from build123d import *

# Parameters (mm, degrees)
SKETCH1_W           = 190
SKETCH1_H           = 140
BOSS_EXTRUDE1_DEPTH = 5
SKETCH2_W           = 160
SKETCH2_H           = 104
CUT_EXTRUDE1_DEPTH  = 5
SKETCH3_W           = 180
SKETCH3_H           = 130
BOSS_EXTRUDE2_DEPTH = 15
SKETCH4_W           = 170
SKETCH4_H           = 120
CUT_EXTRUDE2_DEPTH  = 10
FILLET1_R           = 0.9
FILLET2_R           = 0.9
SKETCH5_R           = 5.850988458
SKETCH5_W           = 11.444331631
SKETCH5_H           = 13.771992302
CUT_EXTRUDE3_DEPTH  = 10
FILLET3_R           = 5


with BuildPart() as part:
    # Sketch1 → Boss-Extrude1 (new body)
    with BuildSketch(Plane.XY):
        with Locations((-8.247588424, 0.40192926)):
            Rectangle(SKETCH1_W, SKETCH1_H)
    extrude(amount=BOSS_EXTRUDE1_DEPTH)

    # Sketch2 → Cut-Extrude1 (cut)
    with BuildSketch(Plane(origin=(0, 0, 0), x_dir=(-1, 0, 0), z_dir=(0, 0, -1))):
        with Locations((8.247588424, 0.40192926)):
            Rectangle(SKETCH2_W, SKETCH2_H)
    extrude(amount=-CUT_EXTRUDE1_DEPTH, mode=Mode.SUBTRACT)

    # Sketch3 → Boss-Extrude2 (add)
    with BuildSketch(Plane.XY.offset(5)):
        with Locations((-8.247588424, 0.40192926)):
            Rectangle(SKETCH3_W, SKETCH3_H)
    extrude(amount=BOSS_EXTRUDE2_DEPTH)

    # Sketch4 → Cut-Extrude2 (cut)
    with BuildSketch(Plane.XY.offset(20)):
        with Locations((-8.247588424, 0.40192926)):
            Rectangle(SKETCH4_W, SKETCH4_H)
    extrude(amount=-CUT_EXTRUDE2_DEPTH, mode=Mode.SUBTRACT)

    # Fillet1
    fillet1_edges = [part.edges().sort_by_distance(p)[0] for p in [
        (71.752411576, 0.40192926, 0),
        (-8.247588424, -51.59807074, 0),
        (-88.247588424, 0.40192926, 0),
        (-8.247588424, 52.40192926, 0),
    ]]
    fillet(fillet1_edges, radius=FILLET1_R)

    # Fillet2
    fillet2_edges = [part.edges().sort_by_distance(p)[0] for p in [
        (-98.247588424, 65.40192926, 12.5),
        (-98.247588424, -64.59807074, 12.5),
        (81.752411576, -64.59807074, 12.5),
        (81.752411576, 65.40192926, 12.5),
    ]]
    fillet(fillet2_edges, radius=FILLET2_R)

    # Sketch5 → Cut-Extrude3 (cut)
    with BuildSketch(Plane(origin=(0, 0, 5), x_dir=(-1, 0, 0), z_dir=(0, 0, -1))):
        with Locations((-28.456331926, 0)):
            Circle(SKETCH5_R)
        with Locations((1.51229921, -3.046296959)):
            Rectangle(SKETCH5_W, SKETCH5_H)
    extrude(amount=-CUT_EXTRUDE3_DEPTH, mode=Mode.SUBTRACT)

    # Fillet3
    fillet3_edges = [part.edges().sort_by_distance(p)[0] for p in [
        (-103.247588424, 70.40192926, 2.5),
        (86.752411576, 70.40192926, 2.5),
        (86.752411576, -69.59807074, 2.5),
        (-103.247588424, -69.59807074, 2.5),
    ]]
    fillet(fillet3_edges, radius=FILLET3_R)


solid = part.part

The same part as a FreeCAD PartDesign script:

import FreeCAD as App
import Part
import Sketcher


def edges_at(feature, points):
    """Names of the edges that pass closest to the given points."""
    edges = feature.Shape.Edges
    near = lambda p: min(range(len(edges)), key=lambda i: edges[i].distToShape(Part.Vertex(*p))[0])
    return sorted({f"Edge{near(p) + 1}" for p in points})

doc = App.newDocument("Part")
body = doc.addObject("PartDesign::Body", "Body")

sketch1 = body.newObject("Sketcher::SketchObject", "Sketch")
sketch1.AttachmentSupport = (doc.getObject("XY_Plane"), [""])
sketch1.MapMode = "FlatFace"
sketch1.addGeometry(Part.LineSegment(App.Vector(-103, 70, 0), App.Vector(-103, -70, 0)), False)
sketch1.addGeometry(Part.LineSegment(App.Vector(-103, -70, 0), App.Vector(87, -70, 0)), False)
sketch1.addGeometry(Part.LineSegment(App.Vector(87, -70, 0), App.Vector(87, 70, 0)), False)
sketch1.addGeometry(Part.LineSegment(App.Vector(87, 70, 0), App.Vector(-103, 70, 0)), False)
sketch1.addConstraint(Sketcher.Constraint("Coincident", 0, 2, 1, 1))
sketch1.addConstraint(Sketcher.Constraint("Coincident", 1, 2, 2, 1))
sketch1.addConstraint(Sketcher.Constraint("Coincident", 2, 2, 3, 1))
sketch1.addConstraint(Sketcher.Constraint("Coincident", 3, 2, 0, 1))
sketch1.addConstraint(Sketcher.Constraint("Vertical", 0))
sketch1.addConstraint(Sketcher.Constraint("Horizontal", 1))
sketch1.addConstraint(Sketcher.Constraint("Vertical", 2))
sketch1.addConstraint(Sketcher.Constraint("Horizontal", 3))
sketch1.addConstraint(Sketcher.Constraint("DistanceX", 1, 1, 1, 2, 190.0))
sketch1.addConstraint(Sketcher.Constraint("DistanceY", 0, 2, 0, 1, 140.0))
sketch1.addConstraint(Sketcher.Constraint("DistanceX", 0, 2, -1, 1, 103.247588))
sketch1.addConstraint(Sketcher.Constraint("DistanceY", 0, 2, -1, 1, 69.598071))
pad1 = body.newObject("PartDesign::Pad", "Pad")
pad1.Profile = sketch1
pad1.Length = 5

sketch2 = body.newObject("Sketcher::SketchObject", "Sketch001")
sketch2.AttachmentSupport = (doc.getObject("XY_Plane"), [""])
sketch2.MapMode = "FlatFace"
sketch2.addGeometry(Part.LineSegment(App.Vector(72, 52, 0), App.Vector(72, -52, 0)), False)
sketch2.addGeometry(Part.LineSegment(App.Vector(72, -52, 0), App.Vector(-88, -52, 0)), False)
sketch2.addGeometry(Part.LineSegment(App.Vector(-88, -52, 0), App.Vector(-88, 52, 0)), False)
sketch2.addGeometry(Part.LineSegment(App.Vector(-88, 52, 0), App.Vector(72, 52, 0)), False)
sketch2.addConstraint(Sketcher.Constraint("Coincident", 0, 2, 1, 1))
sketch2.addConstraint(Sketcher.Constraint("Coincident", 1, 2, 2, 1))
sketch2.addConstraint(Sketcher.Constraint("Coincident", 2, 2, 3, 1))
sketch2.addConstraint(Sketcher.Constraint("Coincident", 3, 2, 0, 1))
sketch2.addConstraint(Sketcher.Constraint("Vertical", 0))
sketch2.addConstraint(Sketcher.Constraint("Horizontal", 1))
sketch2.addConstraint(Sketcher.Constraint("Vertical", 2))
sketch2.addConstraint(Sketcher.Constraint("Horizontal", 3))
sketch2.addConstraint(Sketcher.Constraint("DistanceX", 1, 2, 1, 1, 160.0))
sketch2.addConstraint(Sketcher.Constraint("DistanceY", 0, 2, 0, 1, 104.0))
sketch2.addConstraint(Sketcher.Constraint("DistanceX", -1, 1, 0, 2, 71.752412))
sketch2.addConstraint(Sketcher.Constraint("DistanceY", 0, 2, -1, 1, 51.598071))
pocket1 = body.newObject("PartDesign::Pocket", "Pocket")
pocket1.Profile = sketch2
pocket1.Length = 5
pocket1.Reversed = True

sketch3 = body.newObject("Sketcher::SketchObject", "Sketch002")
sketch3.AttachmentSupport = (doc.getObject("XY_Plane"), [""])
sketch3.MapMode = "FlatFace"
sketch3.AttachmentOffset = App.Placement(App.Vector(0, 0, 5), App.Rotation())
sketch3.addGeometry(Part.LineSegment(App.Vector(-98, 65, 0), App.Vector(-98, -65, 0)), False)
sketch3.addGeometry(Part.LineSegment(App.Vector(-98, -65, 0), App.Vector(82, -65, 0)), False)
sketch3.addGeometry(Part.LineSegment(App.Vector(82, -65, 0), App.Vector(82, 65, 0)), False)
sketch3.addGeometry(Part.LineSegment(App.Vector(82, 65, 0), App.Vector(-98, 65, 0)), False)
sketch3.addConstraint(Sketcher.Constraint("Coincident", 0, 2, 1, 1))
sketch3.addConstraint(Sketcher.Constraint("Coincident", 1, 2, 2, 1))
sketch3.addConstraint(Sketcher.Constraint("Coincident", 2, 2, 3, 1))
sketch3.addConstraint(Sketcher.Constraint("Coincident", 3, 2, 0, 1))
sketch3.addConstraint(Sketcher.Constraint("Vertical", 0))
sketch3.addConstraint(Sketcher.Constraint("Horizontal", 1))
sketch3.addConstraint(Sketcher.Constraint("Vertical", 2))
sketch3.addConstraint(Sketcher.Constraint("Horizontal", 3))
sketch3.addConstraint(Sketcher.Constraint("DistanceX", 1, 1, 1, 2, 180.0))
sketch3.addConstraint(Sketcher.Constraint("DistanceY", 0, 2, 0, 1, 130.0))
sketch3.addConstraint(Sketcher.Constraint("DistanceX", 0, 2, -1, 1, 98.247588))
sketch3.addConstraint(Sketcher.Constraint("DistanceY", 0, 2, -1, 1, 64.598071))
pad2 = body.newObject("PartDesign::Pad", "Pad001")
pad2.Profile = sketch3
pad2.Length = 15

sketch4 = body.newObject("Sketcher::SketchObject", "Sketch003")
sketch4.AttachmentSupport = (doc.getObject("XY_Plane"), [""])
sketch4.MapMode = "FlatFace"
sketch4.AttachmentOffset = App.Placement(App.Vector(0, 0, 20), App.Rotation())
sketch4.addGeometry(Part.LineSegment(App.Vector(-93, 60, 0), App.Vector(-93, -60, 0)), False)
sketch4.addGeometry(Part.LineSegment(App.Vector(-93, -60, 0), App.Vector(77, -60, 0)), False)
sketch4.addGeometry(Part.LineSegment(App.Vector(77, -60, 0), App.Vector(77, 60, 0)), False)
sketch4.addGeometry(Part.LineSegment(App.Vector(77, 60, 0), App.Vector(-93, 60, 0)), False)
sketch4.addConstraint(Sketcher.Constraint("Coincident", 0, 2, 1, 1))
sketch4.addConstraint(Sketcher.Constraint("Coincident", 1, 2, 2, 1))
sketch4.addConstraint(Sketcher.Constraint("Coincident", 2, 2, 3, 1))
sketch4.addConstraint(Sketcher.Constraint("Coincident", 3, 2, 0, 1))
sketch4.addConstraint(Sketcher.Constraint("Vertical", 0))
sketch4.addConstraint(Sketcher.Constraint("Horizontal", 1))
sketch4.addConstraint(Sketcher.Constraint("Vertical", 2))
sketch4.addConstraint(Sketcher.Constraint("Horizontal", 3))
sketch4.addConstraint(Sketcher.Constraint("DistanceX", 1, 1, 1, 2, 170.0))
sketch4.addConstraint(Sketcher.Constraint("DistanceY", 0, 2, 0, 1, 120.0))
sketch4.addConstraint(Sketcher.Constraint("DistanceX", 0, 2, -1, 1, 93.247588))
sketch4.addConstraint(Sketcher.Constraint("DistanceY", 0, 2, -1, 1, 59.598071))
pocket2 = body.newObject("PartDesign::Pocket", "Pocket001")
pocket2.Profile = sketch4
pocket2.Length = 10
doc.recompute()

fillet = body.newObject("PartDesign::Fillet", "Fillet")
fillet.Base = (pocket2, edges_at(pocket2, [
    (71.752, 0.402, 0),
    (-8.248, -51.598, 0),
    (-88.248, 0.402, 0),
    (-8.248, 52.402, 0),
]))
fillet.Radius = 0.9
doc.recompute()

fillet2 = body.newObject("PartDesign::Fillet", "Fillet001")
fillet2.Base = (fillet, edges_at(fillet, [
    (-98.248, 65.402, 12.5),
    (-98.248, -64.598, 12.5),
    (81.752, -64.598, 12.5),
    (81.752, 65.402, 12.5),
]))
fillet2.Radius = 0.9

sketch5 = body.newObject("Sketcher::SketchObject", "Sketch004")
sketch5.AttachmentSupport = (doc.getObject("XY_Plane"), [""])
sketch5.MapMode = "FlatFace"
sketch5.AttachmentOffset = App.Placement(App.Vector(0, 0, 5), App.Rotation())
sketch5.addGeometry(Part.Circle(App.Vector(28, 0, 0), App.Vector(0, 0, 1), 6), False)
sketch5.addGeometry(Part.LineSegment(App.Vector(4, 4, 0), App.Vector(4, -10, 0)), False)
sketch5.addGeometry(Part.LineSegment(App.Vector(4, -10, 0), App.Vector(-7, -10, 0)), False)
sketch5.addGeometry(Part.LineSegment(App.Vector(-7, -10, 0), App.Vector(-7, 4, 0)), False)
sketch5.addGeometry(Part.LineSegment(App.Vector(-7, 4, 0), App.Vector(4, 4, 0)), False)
sketch5.addConstraint(Sketcher.Constraint("Coincident", 1, 2, 2, 1))
sketch5.addConstraint(Sketcher.Constraint("Coincident", 2, 2, 3, 1))
sketch5.addConstraint(Sketcher.Constraint("Coincident", 3, 2, 4, 1))
sketch5.addConstraint(Sketcher.Constraint("Coincident", 4, 2, 1, 1))
sketch5.addConstraint(Sketcher.Constraint("Vertical", 1))
sketch5.addConstraint(Sketcher.Constraint("Horizontal", 2))
sketch5.addConstraint(Sketcher.Constraint("Vertical", 3))
sketch5.addConstraint(Sketcher.Constraint("Horizontal", 4))
sketch5.addConstraint(Sketcher.Constraint("PointOnObject", 0, 3, -1))
sketch5.addConstraint(Sketcher.Constraint("Diameter", 0, 11.701977))
sketch5.addConstraint(Sketcher.Constraint("DistanceX", 2, 2, 2, 1, 11.444332))
sketch5.addConstraint(Sketcher.Constraint("DistanceY", -1, 1, 3, 2, 3.839699))
sketch5.addConstraint(Sketcher.Constraint("DistanceY", 1, 2, 1, 1, 13.771992))
sketch5.addConstraint(Sketcher.Constraint("DistanceX", -1, 1, 0, 3, 28.456332))
sketch5.addConstraint(Sketcher.Constraint("DistanceX", -1, 1, 1, 2, 4.209867))
pocket3 = body.newObject("PartDesign::Pocket", "Pocket002")
pocket3.Profile = sketch5
pocket3.Length = 10
pocket3.Reversed = True
doc.recompute()

fillet3 = body.newObject("PartDesign::Fillet", "Fillet002")
fillet3.Base = (pocket3, edges_at(pocket3, [
    (-103.248, 70.402, 2.5),
    (86.752, 70.402, 2.5),
    (86.752, -69.598, 2.5),
    (-103.248, -69.598, 2.5),
]))
fillet3.Radius = 5

doc.recompute()
